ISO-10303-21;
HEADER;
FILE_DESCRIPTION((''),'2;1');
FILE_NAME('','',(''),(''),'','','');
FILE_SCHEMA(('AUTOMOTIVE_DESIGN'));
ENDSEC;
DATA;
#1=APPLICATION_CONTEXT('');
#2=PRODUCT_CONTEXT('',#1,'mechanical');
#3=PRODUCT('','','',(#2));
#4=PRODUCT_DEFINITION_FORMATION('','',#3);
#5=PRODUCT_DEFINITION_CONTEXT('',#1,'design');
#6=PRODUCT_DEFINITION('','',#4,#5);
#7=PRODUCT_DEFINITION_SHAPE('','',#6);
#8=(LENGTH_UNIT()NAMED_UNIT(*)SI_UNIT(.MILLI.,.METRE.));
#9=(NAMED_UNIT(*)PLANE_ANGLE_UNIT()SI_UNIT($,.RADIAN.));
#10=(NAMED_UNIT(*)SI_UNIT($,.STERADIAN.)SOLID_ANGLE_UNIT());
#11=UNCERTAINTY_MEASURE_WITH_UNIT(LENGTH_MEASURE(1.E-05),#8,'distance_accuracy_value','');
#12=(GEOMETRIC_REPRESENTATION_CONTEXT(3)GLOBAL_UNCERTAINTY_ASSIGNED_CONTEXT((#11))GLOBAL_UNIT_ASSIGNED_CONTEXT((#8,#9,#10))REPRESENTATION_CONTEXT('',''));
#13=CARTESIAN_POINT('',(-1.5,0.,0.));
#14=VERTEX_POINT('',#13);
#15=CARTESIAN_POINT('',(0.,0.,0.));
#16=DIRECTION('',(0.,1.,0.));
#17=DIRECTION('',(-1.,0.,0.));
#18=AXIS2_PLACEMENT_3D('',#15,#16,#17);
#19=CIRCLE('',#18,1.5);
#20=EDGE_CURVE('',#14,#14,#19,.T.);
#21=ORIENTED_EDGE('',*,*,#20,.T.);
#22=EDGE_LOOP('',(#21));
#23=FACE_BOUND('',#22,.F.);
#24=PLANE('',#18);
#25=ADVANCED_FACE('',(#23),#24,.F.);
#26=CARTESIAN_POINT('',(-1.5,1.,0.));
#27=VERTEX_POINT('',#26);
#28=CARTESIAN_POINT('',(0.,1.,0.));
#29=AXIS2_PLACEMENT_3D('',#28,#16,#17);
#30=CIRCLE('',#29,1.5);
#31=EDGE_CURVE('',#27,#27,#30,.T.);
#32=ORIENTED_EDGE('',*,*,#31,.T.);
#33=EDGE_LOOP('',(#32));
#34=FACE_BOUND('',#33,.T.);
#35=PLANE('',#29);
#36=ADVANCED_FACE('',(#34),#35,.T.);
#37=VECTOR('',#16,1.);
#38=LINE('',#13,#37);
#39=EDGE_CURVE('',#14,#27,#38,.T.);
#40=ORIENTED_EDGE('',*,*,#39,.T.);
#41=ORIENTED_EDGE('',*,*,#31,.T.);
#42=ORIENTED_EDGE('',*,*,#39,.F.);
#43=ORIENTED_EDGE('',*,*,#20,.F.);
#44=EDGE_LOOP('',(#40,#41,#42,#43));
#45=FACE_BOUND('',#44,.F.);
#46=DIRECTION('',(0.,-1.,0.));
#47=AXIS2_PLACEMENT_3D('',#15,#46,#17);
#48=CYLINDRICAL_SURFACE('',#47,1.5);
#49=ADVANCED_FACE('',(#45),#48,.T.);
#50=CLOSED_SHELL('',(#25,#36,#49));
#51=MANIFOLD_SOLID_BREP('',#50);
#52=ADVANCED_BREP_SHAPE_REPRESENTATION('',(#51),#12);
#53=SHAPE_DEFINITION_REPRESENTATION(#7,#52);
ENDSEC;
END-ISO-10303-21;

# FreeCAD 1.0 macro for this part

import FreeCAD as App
import Part
import Sketcher

V = App.Vector
Q = App.Units.Quantity

doc = App.newDocument("Part")
params = doc.addObject("Spreadsheet::Sheet", "Params")
for row, (alias, value) in enumerate([
    ("sketch1_diameter", "3 mm"),
    ("pad1_length", "1 mm"),
], start=1):
    params.set(f"A{row}", alias)
    params.set(f"B{row}", "=" + value)
    params.setAlias(f"B{row}", alias)

body = doc.addObject("PartDesign::Body", "Body")

sketch1 = body.newObject("Sketcher::SketchObject", "Sketch")
sketch1.AttachmentSupport = (doc.getObject("XZ_Plane"), [""])
sketch1.MapMode = "FlatFace"
sketch1.addGeometry(Part.Circle(V(0, 0, 0), V(0, 0, 1), 1.5), False)
sketch1.addConstraint([
    Sketcher.Constraint("Coincident", 0, 3, -1, 1),
    Sketcher.Constraint("Diameter", 0, Q("3 mm")),
])
sketch1.setExpression("Constraints[1]", "Params.sketch1_diameter")
pad1 = body.newObject("PartDesign::Pad", "Pad")
pad1.Profile = sketch1
pad1.setExpression("Length", "Params.pad1_length")
pad1.Reversed = True

doc.recompute()
